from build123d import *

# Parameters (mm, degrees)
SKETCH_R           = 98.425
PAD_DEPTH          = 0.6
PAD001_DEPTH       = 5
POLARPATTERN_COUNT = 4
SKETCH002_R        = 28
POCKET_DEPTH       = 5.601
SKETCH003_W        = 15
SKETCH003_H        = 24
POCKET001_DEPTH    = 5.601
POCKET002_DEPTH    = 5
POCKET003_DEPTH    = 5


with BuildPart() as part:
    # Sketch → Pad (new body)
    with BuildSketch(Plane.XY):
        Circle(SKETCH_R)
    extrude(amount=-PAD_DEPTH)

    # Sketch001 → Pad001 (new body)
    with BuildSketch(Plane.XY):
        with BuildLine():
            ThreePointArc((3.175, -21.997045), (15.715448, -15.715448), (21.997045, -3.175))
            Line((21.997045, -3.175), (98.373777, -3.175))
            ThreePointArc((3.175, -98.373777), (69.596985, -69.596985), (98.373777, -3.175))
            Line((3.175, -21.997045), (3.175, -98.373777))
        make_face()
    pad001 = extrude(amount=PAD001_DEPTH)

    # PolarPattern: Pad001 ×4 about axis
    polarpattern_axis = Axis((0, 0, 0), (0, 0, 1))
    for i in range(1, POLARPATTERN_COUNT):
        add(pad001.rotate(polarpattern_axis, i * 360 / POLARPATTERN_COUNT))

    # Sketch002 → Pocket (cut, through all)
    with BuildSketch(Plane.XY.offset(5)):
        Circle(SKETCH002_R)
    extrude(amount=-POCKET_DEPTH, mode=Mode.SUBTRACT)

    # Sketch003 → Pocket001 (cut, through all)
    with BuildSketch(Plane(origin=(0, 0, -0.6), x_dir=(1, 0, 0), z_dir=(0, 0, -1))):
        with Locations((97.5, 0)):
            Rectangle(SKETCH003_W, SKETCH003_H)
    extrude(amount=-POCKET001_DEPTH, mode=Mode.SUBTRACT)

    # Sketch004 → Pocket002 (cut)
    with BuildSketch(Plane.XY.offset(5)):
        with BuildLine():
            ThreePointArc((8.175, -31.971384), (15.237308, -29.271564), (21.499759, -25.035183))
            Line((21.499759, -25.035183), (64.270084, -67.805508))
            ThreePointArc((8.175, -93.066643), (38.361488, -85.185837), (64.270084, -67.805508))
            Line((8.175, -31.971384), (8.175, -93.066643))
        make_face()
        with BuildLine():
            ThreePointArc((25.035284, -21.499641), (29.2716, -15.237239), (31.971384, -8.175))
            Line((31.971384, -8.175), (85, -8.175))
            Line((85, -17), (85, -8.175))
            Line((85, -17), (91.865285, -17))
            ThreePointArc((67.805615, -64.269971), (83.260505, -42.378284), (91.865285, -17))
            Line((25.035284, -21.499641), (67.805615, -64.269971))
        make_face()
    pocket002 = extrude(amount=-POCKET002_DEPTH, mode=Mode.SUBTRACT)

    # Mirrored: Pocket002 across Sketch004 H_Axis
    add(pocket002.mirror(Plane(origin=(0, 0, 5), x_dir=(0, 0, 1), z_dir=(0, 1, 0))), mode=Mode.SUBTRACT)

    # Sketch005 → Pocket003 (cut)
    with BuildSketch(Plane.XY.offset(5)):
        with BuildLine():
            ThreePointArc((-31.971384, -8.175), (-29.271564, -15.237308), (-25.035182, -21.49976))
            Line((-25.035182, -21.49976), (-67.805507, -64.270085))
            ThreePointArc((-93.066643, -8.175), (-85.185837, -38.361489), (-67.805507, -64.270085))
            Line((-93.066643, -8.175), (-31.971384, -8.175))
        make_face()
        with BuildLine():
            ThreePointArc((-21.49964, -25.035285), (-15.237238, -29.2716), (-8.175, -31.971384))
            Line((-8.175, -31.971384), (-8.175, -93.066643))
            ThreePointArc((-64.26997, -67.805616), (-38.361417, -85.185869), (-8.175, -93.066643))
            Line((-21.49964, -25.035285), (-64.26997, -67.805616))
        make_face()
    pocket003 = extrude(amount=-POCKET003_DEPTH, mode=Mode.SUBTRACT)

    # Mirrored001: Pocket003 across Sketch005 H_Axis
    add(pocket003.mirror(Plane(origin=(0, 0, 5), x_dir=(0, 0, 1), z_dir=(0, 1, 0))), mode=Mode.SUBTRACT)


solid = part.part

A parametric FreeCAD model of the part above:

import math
import FreeCAD as App
import Part
import Sketcher
from FreeCAD import Vector
Q = App.Units.Quantity

doc = App.newDocument("Part")
params = doc.addObject("Spreadsheet::Sheet", "Params")
for row, (alias, value) in enumerate([
    ("sketch1_diameter", "196.85 mm"),
    ("pad1_length", "0.6 mm"),
    ("pad2_length", "5 mm"),
    ("sketch3_diameter", "56 mm"),
    ("sketch4_width", "15 mm"),
    ("sketch4_height", "24 mm"),
    ("pocket3_length", "5 mm"),
    ("pocket4_length", "5 mm"),
], start=1):
    params.set(f"A{row}", alias)
    params.set(f"B{row}", "=" + value)
    params.setAlias(f"B{row}", alias)

body = doc.addObject("PartDesign::Body", "Body")

sketch1 = doc.addObject("Sketcher::SketchObject", "Sketch")
body.addObject(sketch1)
sketch1.AttachmentSupport = (doc.XY_Plane, [""])
sketch1.MapMode = "FlatFace"
sketch1.addGeometry(Part.Circle(Vector(0, 0, 0), Vector(0, 0, 1), 98), False)
sketch1.addConstraint([
    Sketcher.Constraint("Coincident", 0, 3, -1, 1),
    Sketcher.Constraint("Diameter", 0, Q("196.85 mm")),
])
sketch1.setExpression("Constraints[1]", "Params.sketch1_diameter")
pad1 = doc.addObject("PartDesign::Pad", "Pad")
body.addObject(pad1)
pad1.Profile = sketch1
pad1.setExpression("Length", "Params.pad1_length")
pad1.Reversed = True

sketch2 = doc.addObject("Sketcher::SketchObject", "Sketch001")
body.addObject(sketch2)
sketch2.AttachmentSupport = (doc.XY_Plane, [""])
sketch2.MapMode = "FlatFace"
sketch2.addGeometry([
    Part.ArcOfCircle(Part.Circle(Vector(0, 0, 0), Vector(0, 0, 1), 22), math.radians(-82), math.radians(-8)),
    Part.LineSegment(Vector(3, -22, 0), Vector(3, -98, 0)),
    Part.ArcOfCircle(Part.Circle(Vector(0, 0, 0), Vector(0, 0, 1), 98), math.radians(-88), math.radians(-2)),
    Part.LineSegment(Vector(98, -3, 0), Vector(22, -3, 0)),
], False)
sketch2.addConstraint([
    Sketcher.Constraint("Coincident", 0, 1, 1, 1),
    Sketcher.Constraint("Coincident", 1, 2, 2, 1),
    Sketcher.Constraint("Coincident", 2, 2, 3, 1),
    Sketcher.Constraint("Coincident", 3, 2, 0, 2),
    Sketcher.Constraint("Vertical", 1),
    Sketcher.Constraint("Horizontal", 3),
    Sketcher.Constraint("Coincident", 0, 3, -1, 1),
    Sketcher.Constraint("Coincident", 2, 3, -1, 1),
    Sketcher.Constraint("Equal", 3, 1),
    Sketcher.Constraint("Radius", 0, Q("22.225 mm")),
    Sketcher.Constraint("Radius", 2, Q("98.425 mm")),
    Sketcher.Constraint("DistanceX", -1, 1, 0, 1, Q("3.175 mm")),
])
pad2 = doc.addObject("PartDesign::Pad", "Pad001")
body.addObject(pad2)
pad2.Profile = sketch2
pad2.setExpression("Length", "Params.pad2_length")
doc.recompute()

polarpattern = doc.addObject("PartDesign::PolarPattern", "PolarPattern")
body.addObject(polarpattern)
polarpattern.Originals = [pad2]
polarpattern.Axis = (doc.Z_Axis, [""])
polarpattern.Angle = 360
polarpattern.Occurrences = 4
body.Tip = polarpattern

sketch3 = doc.addObject("Sketcher::SketchObject", "Sketch002")
body.addObject(sketch3)
sketch3.AttachmentSupport = (doc.XY_Plane, [""])
sketch3.MapMode = "FlatFace"
sketch3.AttachmentOffset = App.Placement(Vector(0, 0, 5), App.Rotation())
sketch3.addGeometry(Part.Circle(Vector(0, 0, 0), Vector(0, 0, 1), 28), False)
sketch3.addConstraint([
    Sketcher.Constraint("Coincident", 0, 3, -1, 1),
    Sketcher.Constraint("Diameter", 0, Q("56 mm")),
])
sketch3.setExpression("Constraints[1]", "Params.sketch3_diameter")
pocket1 = doc.addObject("PartDesign::Pocket", "Pocket")
body.addObject(pocket1)
pocket1.Profile = sketch3
pocket1.Type = "ThroughAll"

sketch4 = doc.addObject("Sketcher::SketchObject", "Sketch003")
body.addObject(sketch4)
sketch4.AttachmentSupport = (doc.XY_Plane, [""])
sketch4.MapMode = "FlatFace"
sketch4.AttachmentOffset = App.Placement(Vector(0, 0, -0.6), App.Rotation())
sketch4.addGeometry([
    Part.LineSegment(Vector(90, -12, 0), Vector(90, 12, 0)),
    Part.LineSegment(Vector(90, 12, 0), Vector(105, 12, 0)),
    Part.LineSegment(Vector(105, 12, 0), Vector(105, -12, 0)),
    Part.LineSegment(Vector(105, -12, 0), Vector(90, -12, 0)),
], False)
sketch4.addConstraint([
    Sketcher.Constraint("Coincident", 0, 2, 1, 1),
    Sketcher.Constraint("Coincident", 1, 2, 2, 1),
    Sketcher.Constraint("Coincident", 2, 2, 3, 1),
    Sketcher.Constraint("Coincident", 3, 2, 0, 1),
    Sketcher.Constraint("Vertical", 0),
    Sketcher.Constraint("Horizontal", 1),
    Sketcher.Constraint("Vertical", 2),
    Sketcher.Constraint("Horizontal", 3),
    Sketcher.Constraint("DistanceX", 1, 1, 1, 2, Q("15 mm")),
    Sketcher.Constraint("DistanceY", 0, 1, 0, 2, Q("24 mm")),
    Sketcher.Constraint("DistanceX", -1, 1, 0, 2, Q("90 mm")),
    Sketcher.Constraint("DistanceY", -1, 1, 0, 2, Q("12 mm")),
])
sketch4.setExpression("Constraints[8]", "Params.sketch4_width")
sketch4.setExpression("Constraints[9]", "Params.sketch4_height")
pocket2 = doc.addObject("PartDesign::Pocket", "Pocket001")
body.addObject(pocket2)
pocket2.Profile = sketch4
pocket2.Type = "ThroughAll"
pocket2.Reversed = True

sketch5 = doc.addObject("Sketcher::SketchObject", "Sketch004")
body.addObject(sketch5)
sketch5.AttachmentSupport = (doc.XY_Plane, [""])
sketch5.MapMode = "FlatFace"
sketch5.AttachmentOffset = App.Placement(Vector(0, 0, 5), App.Rotation())
sketch5.addGeometry([
    Part.ArcOfCircle(Part.Circle(Vector(0, 0, 0), Vector(0, 0, 1), 33), math.radians(-76), math.radians(-49)),
    Part.LineSegment(Vector(8, -32, 0), Vector(8, -93, 0)),
    Part.ArcOfCircle(Part.Circle(Vector(0, 0, 0), Vector(0, 0, 1), 93), math.radians(-85), math.radians(-47)),
    Part.LineSegment(Vector(64, -68, 0), Vector(21, -25, 0)),
    Part.ArcOfCircle(Part.Circle(Vector(0, 0, 0), Vector(0, 0, 1), 33), math.radians(-41), math.radians(-14)),
    Part.LineSegment(Vector(25, -21, 0), Vector(68, -64, 0)),
    Part.ArcOfCircle(Part.Circle(Vector(0, 0, 0), Vector(0, 0, 1), 93), math.radians(-43), math.radians(-10)),
    Part.LineSegment(Vector(92, -17, 0), Vector(85, -17, 0)),
    Part.LineSegment(Vector(85, -17, 0), Vector(85, -8, 0)),
    Part.LineSegment(Vector(85, -8, 0), Vector(32, -8, 0)),
], False)
sketch5.addConstraint([
    Sketcher.Constraint("Coincident", 0, 1, 1, 1),
    Sketcher.Constraint("Coincident", 1, 2, 2, 1),
    Sketcher.Constraint("Coincident", 2, 2, 3, 1),
    Sketcher.Constraint("Coincident", 3, 2, 0, 2),
    Sketcher.Constraint("Coincident", 4, 1, 5, 1),
    Sketcher.Constraint("Coincident", 5, 2, 6, 1),
    Sketcher.Constraint("Coincident", 6, 2, 7, 1),
    Sketcher.Constraint("Coincident", 7, 2, 8, 1),
    Sketcher.Constraint("Coincident", 8, 2, 9, 1),
    Sketcher.Constraint("Coincident", 9, 2, 4, 2),
    Sketcher.Constraint("Vertical", 1),
    Sketcher.Constraint("Horizontal", 7),
    Sketcher.Constraint("Vertical", 8),
    Sketcher.Constraint("Horizontal", 9),
    Sketcher.Constraint("Coincident", 0, 3, -1, 1),
    Sketcher.Constraint("Coincident", 2, 3, -1, 1),
    Sketcher.Constraint("Coincident", 4, 3, -1, 1),
    Sketcher.Constraint("Coincident", 6, 3, -1, 1),
    Sketcher.Constraint("Parallel", 3, 5),
    Sketcher.Constraint("Angle", 3, Q("135 deg")),
    Sketcher.Constraint("DistanceY", 6, 2, -1, 1, Q("17 mm")),
    Sketcher.Constraint("DistanceX", -1, 1, 7, 2, Q("85 mm")),
    Sketcher.Constraint("DistanceY", 8, 1, 8, 2, Q("8.825 mm")),
    Sketcher.Constraint("DistanceX", 4, 1, 6, 2, Q("66.830001 mm")),
    Sketcher.Constraint("DistanceX", -1, 1, 0, 1, Q("8.175 mm")),
    Sketcher.Constraint("Radius", 0, Q("33.000005 mm")),
    Sketcher.Constraint("Radius", 2, Q("93.425005 mm")),
    Sketcher.Constraint("Radius", 4, Q("32.999997 mm")),
    Sketcher.Constraint("Radius", 6, Q("93.424993 mm")),
    Sketcher.Constraint("DistanceY", 0, 1, 3, 2, Q("6.936201 mm")),
])
pocket3 = doc.addObject("PartDesign::Pocket", "Pocket002")
body.addObject(pocket3)
pocket3.Profile = sketch5
pocket3.setExpression("Length", "Params.pocket3_length")
doc.recompute()

mirrored = doc.addObject("PartDesign::Mirrored", "Mirrored")
body.addObject(mirrored)
mirrored.Originals = [pocket3]
mirrored.MirrorPlane = (doc.XZ_Plane, [""])
body.Tip = mirrored

sketch6 = doc.addObject("Sketcher::SketchObject", "Sketch005")
body.addObject(sketch6)
sketch6.AttachmentSupport = (doc.XY_Plane, [""])
sketch6.MapMode = "FlatFace"
sketch6.AttachmentOffset = App.Placement(Vector(0, 0, 5), App.Rotation())
sketch6.addGeometry([
    Part.ArcOfCircle(Part.Circle(Vector(0, 0, 0), Vector(0, 0, 1), 33), math.radians(-166), math.radians(-139)),
    Part.LineSegment(Vector(-32, -8, 0), Vector(-93, -8, 0)),
    Part.ArcOfCircle(Part.Circle(Vector(0, 0, 0), Vector(0, 0, 1), 93), math.radians(-175), math.radians(-137)),
    Part.LineSegment(Vector(-68, -64, 0), Vector(-25, -21, 0)),
    Part.ArcOfCircle(Part.Circle(Vector(0, 0, 0), Vector(0, 0, 1), 33), math.radians(-131), math.radians(-104)),
    Part.LineSegment(Vector(-21, -25, 0), Vector(-64, -68, 0)),
    Part.ArcOfCircle(Part.Circle(Vector(0, 0, 0), Vector(0, 0, 1), 93), math.radians(-133), math.radians(-95)),
    Part.LineSegment(Vector(-8, -93, 0), Vector(-8, -32, 0)),
], False)
sketch6.addConstraint([
    Sketcher.Constraint("Coincident", 0, 1, 1, 1),
    Sketcher.Constraint("Coincident", 1, 2, 2, 1),
    Sketcher.Constraint("Coincident", 2, 2, 3, 1),
    Sketcher.Constraint("Coincident", 3, 2, 0, 2),
    Sketcher.Constraint("Coincident", 4, 1, 5, 1),
    Sketcher.Constraint("Coincident", 5, 2, 6, 1),
    Sketcher.Constraint("Coincident", 6, 2, 7, 1),
    Sketcher.Constraint("Coincident", 7, 2, 4, 2),
    Sketcher.Constraint("Horizontal", 1),
    Sketcher.Constraint("Vertical", 7),
    Sketcher.Constraint("Coincident", 0, 3, -1, 1),
    Sketcher.Constraint("Coincident", 2, 3, -1, 1),
    Sketcher.Constraint("Coincident", 6, 3, -1, 1),
    Sketcher.Constraint("Parallel", 3, 5),
    Sketcher.Constraint("Equal", 1, 7),
    Sketcher.Constraint("Angle", 3, Q("45 deg")),
    Sketcher.Constraint("DistanceY", 0, 1, -1, 1, Q("8.175 mm")),
    Sketcher.Constraint("DistanceX", 6, 2, -1, 1, Q("8.175 mm")),
    Sketcher.Constraint("Radius", 0, Q("33.000003 mm")),
    Sketcher.Constraint("Radius", 2, Q("93.424997 mm")),
    Sketcher.Constraint("Radius", 4, Q("33.000017 mm")),
    Sketcher.Constraint("Radius", 6, Q("93.425004 mm")),
    Sketcher.Constraint("DistanceX", 0, 1, 3, 2, Q("6.936202 mm")),
    Sketcher.Constraint("DistanceY", 7, 2, 4, 1, Q("6.936099 mm")),
    Sketcher.Constraint("Distance", 5, Q("60.486381 mm")),
])
pocket4 = doc.addObject("PartDesign::Pocket", "Pocket003")
body.addObject(pocket4)
pocket4.Profile = sketch6
pocket4.setExpression("Length", "Params.pocket4_length")
doc.recompute()

mirrored2 = doc.addObject("PartDesign::Mirrored", "Mirrored001")
body.addObject(mirrored2)
mirrored2.Originals = [pocket4]
mirrored2.MirrorPlane = (doc.XZ_Plane, [""])
body.Tip = mirrored2

doc.recompute()
